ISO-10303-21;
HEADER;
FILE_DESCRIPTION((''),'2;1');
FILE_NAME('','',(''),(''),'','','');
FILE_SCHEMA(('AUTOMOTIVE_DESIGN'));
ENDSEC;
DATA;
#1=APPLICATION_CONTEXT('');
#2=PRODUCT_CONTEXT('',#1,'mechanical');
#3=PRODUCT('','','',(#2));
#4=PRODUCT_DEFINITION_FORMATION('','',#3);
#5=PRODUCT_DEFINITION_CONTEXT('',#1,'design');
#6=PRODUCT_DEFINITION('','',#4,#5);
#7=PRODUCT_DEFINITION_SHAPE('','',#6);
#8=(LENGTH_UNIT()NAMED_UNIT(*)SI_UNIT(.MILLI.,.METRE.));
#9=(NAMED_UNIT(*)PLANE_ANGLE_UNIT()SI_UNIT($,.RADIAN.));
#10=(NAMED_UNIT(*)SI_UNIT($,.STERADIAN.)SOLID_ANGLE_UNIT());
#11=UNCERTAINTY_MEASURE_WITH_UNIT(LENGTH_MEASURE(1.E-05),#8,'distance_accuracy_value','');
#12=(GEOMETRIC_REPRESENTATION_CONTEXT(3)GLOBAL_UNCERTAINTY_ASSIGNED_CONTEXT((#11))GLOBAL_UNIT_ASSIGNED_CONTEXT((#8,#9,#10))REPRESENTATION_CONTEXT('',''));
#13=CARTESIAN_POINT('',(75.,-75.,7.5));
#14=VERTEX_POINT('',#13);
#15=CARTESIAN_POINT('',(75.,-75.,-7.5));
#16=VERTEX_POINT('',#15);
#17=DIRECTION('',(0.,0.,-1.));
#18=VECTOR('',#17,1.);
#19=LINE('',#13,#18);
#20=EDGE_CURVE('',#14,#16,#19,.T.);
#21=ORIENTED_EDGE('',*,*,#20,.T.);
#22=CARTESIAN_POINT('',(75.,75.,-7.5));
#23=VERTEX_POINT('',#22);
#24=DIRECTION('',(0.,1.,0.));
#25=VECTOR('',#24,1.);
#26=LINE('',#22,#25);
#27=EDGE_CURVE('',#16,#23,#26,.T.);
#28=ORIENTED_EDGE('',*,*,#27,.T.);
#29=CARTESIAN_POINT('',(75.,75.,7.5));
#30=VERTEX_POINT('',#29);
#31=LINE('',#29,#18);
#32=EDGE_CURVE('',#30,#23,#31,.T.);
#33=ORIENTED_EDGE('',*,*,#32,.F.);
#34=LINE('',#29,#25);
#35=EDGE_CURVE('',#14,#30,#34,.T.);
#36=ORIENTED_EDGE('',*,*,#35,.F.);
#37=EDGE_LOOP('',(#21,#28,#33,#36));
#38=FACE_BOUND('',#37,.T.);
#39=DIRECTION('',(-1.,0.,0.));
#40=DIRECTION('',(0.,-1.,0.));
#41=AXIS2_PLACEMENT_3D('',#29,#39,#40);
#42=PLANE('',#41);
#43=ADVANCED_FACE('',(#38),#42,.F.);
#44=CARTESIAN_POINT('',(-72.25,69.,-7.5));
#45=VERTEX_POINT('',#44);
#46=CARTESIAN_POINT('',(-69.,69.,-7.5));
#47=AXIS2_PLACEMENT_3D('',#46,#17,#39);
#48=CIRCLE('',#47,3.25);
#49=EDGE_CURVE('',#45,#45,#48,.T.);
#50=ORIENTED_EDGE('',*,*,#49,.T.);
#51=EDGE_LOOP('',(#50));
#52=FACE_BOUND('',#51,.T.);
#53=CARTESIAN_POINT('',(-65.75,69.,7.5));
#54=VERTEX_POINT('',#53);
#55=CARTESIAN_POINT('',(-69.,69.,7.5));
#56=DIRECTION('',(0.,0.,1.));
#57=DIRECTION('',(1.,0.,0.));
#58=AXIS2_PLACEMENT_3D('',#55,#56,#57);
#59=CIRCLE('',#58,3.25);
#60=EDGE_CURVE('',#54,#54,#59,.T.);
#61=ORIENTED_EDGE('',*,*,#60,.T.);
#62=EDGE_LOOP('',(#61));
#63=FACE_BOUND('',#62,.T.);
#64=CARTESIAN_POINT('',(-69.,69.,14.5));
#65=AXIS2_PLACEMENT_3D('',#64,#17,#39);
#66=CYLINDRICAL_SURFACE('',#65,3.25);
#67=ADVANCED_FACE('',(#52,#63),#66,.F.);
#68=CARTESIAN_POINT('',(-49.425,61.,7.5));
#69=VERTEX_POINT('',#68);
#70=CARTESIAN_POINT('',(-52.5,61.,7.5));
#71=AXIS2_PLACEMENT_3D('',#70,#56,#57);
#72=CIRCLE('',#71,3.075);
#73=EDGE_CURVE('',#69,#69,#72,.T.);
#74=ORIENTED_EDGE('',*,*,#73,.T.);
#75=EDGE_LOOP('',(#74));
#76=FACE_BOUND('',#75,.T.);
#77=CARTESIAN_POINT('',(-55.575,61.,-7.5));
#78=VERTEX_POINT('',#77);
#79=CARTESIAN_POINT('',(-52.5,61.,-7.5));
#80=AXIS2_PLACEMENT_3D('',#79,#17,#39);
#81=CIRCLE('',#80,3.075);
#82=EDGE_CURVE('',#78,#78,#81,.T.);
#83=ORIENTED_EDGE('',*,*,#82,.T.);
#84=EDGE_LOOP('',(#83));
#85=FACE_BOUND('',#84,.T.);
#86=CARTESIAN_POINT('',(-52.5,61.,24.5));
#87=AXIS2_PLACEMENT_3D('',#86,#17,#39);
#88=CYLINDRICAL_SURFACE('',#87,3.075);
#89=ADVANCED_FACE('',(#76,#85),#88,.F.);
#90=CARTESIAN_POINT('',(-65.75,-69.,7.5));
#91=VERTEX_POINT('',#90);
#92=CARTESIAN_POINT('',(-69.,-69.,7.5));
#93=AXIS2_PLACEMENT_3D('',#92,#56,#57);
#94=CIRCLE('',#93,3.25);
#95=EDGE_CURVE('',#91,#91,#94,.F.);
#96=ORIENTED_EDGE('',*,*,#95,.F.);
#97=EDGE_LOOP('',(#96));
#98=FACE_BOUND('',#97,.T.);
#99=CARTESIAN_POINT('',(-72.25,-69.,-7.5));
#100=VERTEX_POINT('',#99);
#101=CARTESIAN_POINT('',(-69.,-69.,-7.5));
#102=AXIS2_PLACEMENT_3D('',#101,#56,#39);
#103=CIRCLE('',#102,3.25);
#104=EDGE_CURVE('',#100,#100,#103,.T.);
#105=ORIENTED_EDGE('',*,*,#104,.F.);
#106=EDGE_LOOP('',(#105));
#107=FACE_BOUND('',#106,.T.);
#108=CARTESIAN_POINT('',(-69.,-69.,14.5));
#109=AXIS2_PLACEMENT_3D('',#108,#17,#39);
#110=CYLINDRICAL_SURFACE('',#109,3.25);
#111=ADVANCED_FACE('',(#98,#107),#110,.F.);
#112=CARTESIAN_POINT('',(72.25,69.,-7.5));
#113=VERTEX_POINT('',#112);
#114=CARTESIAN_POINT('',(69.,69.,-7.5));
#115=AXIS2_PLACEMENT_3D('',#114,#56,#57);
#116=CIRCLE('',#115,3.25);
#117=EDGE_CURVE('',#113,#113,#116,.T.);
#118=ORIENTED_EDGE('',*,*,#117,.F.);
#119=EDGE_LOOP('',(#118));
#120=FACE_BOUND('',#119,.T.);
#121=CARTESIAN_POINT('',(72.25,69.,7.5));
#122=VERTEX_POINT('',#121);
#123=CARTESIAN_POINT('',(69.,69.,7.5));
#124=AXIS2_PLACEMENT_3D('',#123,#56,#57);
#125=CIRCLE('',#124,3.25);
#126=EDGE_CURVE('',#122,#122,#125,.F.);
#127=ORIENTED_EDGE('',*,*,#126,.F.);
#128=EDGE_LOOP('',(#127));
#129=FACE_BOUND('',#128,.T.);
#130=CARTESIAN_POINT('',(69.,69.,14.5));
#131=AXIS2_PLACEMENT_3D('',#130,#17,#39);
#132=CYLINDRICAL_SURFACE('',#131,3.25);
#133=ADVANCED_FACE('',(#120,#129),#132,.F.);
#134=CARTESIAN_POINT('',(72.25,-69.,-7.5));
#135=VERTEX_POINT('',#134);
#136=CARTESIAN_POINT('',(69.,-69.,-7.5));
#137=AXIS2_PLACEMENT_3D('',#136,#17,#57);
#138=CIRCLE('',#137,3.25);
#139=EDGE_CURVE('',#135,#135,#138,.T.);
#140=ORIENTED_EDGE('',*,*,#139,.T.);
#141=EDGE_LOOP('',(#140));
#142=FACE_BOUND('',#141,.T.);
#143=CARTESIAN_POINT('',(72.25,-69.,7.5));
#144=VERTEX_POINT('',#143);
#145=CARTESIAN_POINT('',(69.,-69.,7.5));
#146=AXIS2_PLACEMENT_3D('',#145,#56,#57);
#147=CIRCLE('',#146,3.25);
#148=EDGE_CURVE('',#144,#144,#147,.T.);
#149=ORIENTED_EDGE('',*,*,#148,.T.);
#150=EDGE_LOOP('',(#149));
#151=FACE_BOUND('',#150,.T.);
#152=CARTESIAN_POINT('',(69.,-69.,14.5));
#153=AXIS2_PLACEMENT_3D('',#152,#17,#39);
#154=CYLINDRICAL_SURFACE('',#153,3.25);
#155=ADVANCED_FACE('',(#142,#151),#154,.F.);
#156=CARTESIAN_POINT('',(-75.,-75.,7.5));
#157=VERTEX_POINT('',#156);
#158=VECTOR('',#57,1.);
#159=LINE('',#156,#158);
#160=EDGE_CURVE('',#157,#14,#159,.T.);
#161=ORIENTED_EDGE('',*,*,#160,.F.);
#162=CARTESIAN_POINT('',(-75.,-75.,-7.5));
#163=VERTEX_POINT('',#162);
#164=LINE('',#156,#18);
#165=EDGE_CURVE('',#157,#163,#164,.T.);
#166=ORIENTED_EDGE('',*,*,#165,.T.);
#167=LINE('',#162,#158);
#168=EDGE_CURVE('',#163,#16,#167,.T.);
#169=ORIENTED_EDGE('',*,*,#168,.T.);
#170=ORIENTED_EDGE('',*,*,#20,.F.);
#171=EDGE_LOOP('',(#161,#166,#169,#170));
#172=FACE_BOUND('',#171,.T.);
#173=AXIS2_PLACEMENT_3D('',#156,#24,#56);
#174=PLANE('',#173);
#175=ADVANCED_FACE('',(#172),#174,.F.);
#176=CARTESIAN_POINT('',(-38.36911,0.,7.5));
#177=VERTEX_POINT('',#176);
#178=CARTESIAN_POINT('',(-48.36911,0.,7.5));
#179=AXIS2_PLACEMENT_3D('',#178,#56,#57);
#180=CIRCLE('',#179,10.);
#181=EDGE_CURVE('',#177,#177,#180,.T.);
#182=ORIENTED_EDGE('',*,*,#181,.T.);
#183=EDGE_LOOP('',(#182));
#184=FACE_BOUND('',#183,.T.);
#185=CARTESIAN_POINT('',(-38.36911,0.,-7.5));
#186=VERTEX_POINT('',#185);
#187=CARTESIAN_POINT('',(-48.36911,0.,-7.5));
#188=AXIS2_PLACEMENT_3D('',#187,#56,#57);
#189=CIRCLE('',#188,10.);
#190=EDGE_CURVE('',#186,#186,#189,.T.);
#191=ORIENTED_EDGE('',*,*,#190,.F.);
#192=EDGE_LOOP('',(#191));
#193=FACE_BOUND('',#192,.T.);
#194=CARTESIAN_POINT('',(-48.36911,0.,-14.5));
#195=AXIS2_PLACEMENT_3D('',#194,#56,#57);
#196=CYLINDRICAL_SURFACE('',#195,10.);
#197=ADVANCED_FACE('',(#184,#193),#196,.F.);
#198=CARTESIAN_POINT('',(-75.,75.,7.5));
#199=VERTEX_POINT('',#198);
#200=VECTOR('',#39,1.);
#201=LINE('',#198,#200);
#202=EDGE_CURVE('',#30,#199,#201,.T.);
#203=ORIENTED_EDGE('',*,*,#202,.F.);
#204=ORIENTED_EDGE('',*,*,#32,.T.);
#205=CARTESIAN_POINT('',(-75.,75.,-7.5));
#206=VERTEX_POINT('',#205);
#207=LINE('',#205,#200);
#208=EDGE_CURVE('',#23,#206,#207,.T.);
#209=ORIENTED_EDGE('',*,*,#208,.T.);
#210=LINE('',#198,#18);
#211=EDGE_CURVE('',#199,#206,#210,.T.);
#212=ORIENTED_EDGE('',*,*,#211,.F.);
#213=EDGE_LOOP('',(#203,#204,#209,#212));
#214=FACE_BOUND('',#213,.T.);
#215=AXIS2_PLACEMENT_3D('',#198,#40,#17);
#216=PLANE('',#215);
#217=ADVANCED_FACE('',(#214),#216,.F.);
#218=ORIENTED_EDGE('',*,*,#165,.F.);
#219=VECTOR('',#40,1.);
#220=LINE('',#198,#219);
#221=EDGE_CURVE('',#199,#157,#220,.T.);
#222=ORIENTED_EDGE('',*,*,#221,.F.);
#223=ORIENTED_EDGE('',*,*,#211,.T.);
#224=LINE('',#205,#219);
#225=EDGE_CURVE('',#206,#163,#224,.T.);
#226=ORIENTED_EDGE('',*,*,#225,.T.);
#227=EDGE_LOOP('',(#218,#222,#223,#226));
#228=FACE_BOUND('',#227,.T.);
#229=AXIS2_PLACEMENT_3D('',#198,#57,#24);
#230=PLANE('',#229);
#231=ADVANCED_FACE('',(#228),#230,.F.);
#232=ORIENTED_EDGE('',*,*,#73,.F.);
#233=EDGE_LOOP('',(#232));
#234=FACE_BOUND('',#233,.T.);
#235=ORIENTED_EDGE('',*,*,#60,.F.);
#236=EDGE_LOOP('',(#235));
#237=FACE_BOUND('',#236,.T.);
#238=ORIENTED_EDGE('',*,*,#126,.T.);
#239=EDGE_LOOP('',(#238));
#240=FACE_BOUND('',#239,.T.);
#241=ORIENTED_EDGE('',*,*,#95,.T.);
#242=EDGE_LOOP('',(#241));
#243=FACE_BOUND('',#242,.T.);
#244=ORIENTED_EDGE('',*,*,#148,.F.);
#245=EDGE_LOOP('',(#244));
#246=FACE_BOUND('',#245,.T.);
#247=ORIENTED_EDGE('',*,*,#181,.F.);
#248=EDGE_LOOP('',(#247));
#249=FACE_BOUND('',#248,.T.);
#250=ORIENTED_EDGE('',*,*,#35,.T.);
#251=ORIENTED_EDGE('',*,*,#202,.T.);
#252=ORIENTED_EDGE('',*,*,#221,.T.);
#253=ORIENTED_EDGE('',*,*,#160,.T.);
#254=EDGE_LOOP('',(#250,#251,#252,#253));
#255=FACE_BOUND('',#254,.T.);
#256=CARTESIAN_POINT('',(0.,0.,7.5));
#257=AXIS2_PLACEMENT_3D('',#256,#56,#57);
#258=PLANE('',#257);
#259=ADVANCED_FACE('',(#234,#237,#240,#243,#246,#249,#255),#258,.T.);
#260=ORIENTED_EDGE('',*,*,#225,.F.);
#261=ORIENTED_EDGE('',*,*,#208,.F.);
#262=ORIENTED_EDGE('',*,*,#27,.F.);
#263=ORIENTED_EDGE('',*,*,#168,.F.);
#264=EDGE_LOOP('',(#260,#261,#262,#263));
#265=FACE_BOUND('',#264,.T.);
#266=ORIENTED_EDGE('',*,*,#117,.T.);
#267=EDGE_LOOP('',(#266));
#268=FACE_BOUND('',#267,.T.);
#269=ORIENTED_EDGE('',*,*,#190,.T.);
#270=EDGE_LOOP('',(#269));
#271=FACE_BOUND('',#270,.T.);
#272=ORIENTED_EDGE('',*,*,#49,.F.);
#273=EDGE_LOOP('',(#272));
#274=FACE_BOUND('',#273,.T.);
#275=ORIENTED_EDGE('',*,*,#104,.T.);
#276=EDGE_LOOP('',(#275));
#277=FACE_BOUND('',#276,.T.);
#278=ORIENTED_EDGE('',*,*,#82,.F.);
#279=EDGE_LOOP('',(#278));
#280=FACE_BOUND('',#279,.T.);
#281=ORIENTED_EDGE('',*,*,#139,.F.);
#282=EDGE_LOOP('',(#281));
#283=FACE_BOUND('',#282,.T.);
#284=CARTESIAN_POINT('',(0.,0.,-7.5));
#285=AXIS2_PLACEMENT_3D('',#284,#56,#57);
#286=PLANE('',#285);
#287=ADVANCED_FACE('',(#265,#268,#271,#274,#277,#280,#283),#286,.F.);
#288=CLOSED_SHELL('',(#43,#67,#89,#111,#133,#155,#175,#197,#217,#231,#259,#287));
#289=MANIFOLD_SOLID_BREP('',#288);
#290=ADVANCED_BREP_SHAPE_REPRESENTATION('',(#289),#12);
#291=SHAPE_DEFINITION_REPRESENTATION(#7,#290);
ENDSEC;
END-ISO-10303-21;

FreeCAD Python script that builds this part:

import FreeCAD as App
import Part
import Sketcher

V = App.Vector
Q = App.Units.Quantity

doc = App.newDocument("Part")
body = doc.addObject("PartDesign::Body", "Body")

# Sketch on XY plane
sketch1 = body.newObject("Sketcher::SketchObject", "Sketch")
sketch1.AttachmentSupport = (doc.getObject("XY_Plane"), [""])
sketch1.MapMode = "FlatFace"
sketch1.addGeometry(Part.LineSegment(V(-75, 75, 0), V(-75, -75, 0)), False)
sketch1.addGeometry(Part.LineSegment(V(-75, -75, 0), V(75, -75, 0)), False)
sketch1.addGeometry(Part.LineSegment(V(75, -75, 0), V(75, 75, 0)), False)
sketch1.addGeometry(Part.LineSegment(V(75, 75, 0), V(-75, 75, 0)), False)
sketch1.addConstraint(Sketcher.Constraint("Coincident", 0, 2, 1, 1))
sketch1.addConstraint(Sketcher.Constraint("Coincident", 1, 2, 2, 1))
sketch1.addConstraint(Sketcher.Constraint("Coincident", 2, 2, 3, 1))
sketch1.addConstraint(Sketcher.Constraint("Coincident", 3, 2, 0, 1))
sketch1.addConstraint(Sketcher.Constraint("Vertical", 0))
sketch1.addConstraint(Sketcher.Constraint("Horizontal", 1))
sketch1.addConstraint(Sketcher.Constraint("Vertical", 2))
sketch1.addConstraint(Sketcher.Constraint("Horizontal", 3))
sketch1.addConstraint(Sketcher.Constraint("Symmetric", 0, 2, 2, 2, -1, 1))
sketch1.addConstraint(Sketcher.Constraint("Equal", 3, 0))
sketch1.addConstraint(Sketcher.Constraint("DistanceX", 1, 1, 1, 2, Q("150 mm")))
pad1 = body.newObject("PartDesign::Pad", "Pad")
pad1.Profile = sketch1
pad1.Length = 15
pad1.Midplane = True

# Sketch on XY plane
sketch2 = body.newObject("Sketcher::SketchObject", "Sketch001")
sketch2.AttachmentSupport = (doc.getObject("XY_Plane"), [""])
sketch2.MapMode = "FlatFace"
sketch2.AttachmentOffset = App.Placement(V(0, 0, -7.5), App.Rotation())
sketch2.addGeometry(Part.Circle(V(-52.5, 61, 0), V(0, 0, 1), 3.075), False)
sketch2.addConstraint(Sketcher.Constraint("Diameter", 0, Q("6.15 mm")))
sketch2.addConstraint(Sketcher.Constraint("DistanceY", -1, 1, 0, 3, Q("61 mm")))
sketch2.addConstraint(Sketcher.Constraint("DistanceX", 0, 3, -1, 1, Q("52.5 mm")))
pocket1 = body.newObject("PartDesign::Pocket", "Pocket")
pocket1.Profile = sketch2
pocket1.Length = 32
pocket1.Reversed = True

# Sketch on XY plane
sketch3 = body.newObject("Sketcher::SketchObject", "Sketch002")
sketch3.AttachmentSupport = (doc.getObject("XY_Plane"), [""])
sketch3.MapMode = "FlatFace"
sketch3.AttachmentOffset = App.Placement(V(0, 0, 7.5), App.Rotation())
sketch3.addGeometry(Part.Circle(V(-48.36911, 0, 0), V(0, 0, 1), 10), False)
sketch3.addConstraint(Sketcher.Constraint("PointOnObject", 0, 3, -1))
sketch3.addConstraint(Sketcher.Constraint("Diameter", 0, Q("20 mm")))
sketch3.addConstraint(Sketcher.Constraint("DistanceX", 0, 3, -1, 1, Q("48.36911 mm")))
pocket2 = body.newObject("PartDesign::Pocket", "Pocket001")
pocket2.Profile = sketch3
pocket2.Length = 22

# Sketch on XY plane
sketch4 = body.newObject("Sketcher::SketchObject", "Sketch003")
sketch4.AttachmentSupport = (doc.getObject("XY_Plane"), [""])
sketch4.MapMode = "FlatFace"
sketch4.AttachmentOffset = App.Placement(V(0, 0, -7.5), App.Rotation())
sketch4.addGeometry(Part.Circle(V(-69, 69, 0), V(0, 0, 1), 3.25), False)
sketch4.addConstraint(Sketcher.Constraint("Diameter", 0, Q("6.5 mm")))
sketch4.addConstraint(Sketcher.Constraint("DistanceX", 0, 3, -1, 1, Q("69 mm")))
sketch4.addConstraint(Sketcher.Constraint("DistanceY", -1, 1, 0, 3, Q("69 mm")))
pocket3 = body.newObject("PartDesign::Pocket", "Pocket002")
pocket3.Profile = sketch4
pocket3.Length = 22
pocket3.Reversed = True
doc.recompute()

mirrored = body.newObject("PartDesign::Mirrored", "Mirrored")
mirrored.Originals = [pocket3]
mirrored.MirrorPlane = (doc.getObject("XZ_Plane"), [""])
body.Tip = mirrored
doc.recompute()

mirrored2 = body.newObject("PartDesign::Mirrored", "Mirrored001")
mirrored2.Originals = [pocket3]
mirrored2.MirrorPlane = (doc.getObject("YZ_Plane"), [""])
body.Tip = mirrored2

# Sketch on XY plane
sketch5 = body.newObject("Sketcher::SketchObject", "Sketch004")
sketch5.AttachmentSupport = (doc.getObject("XY_Plane"), [""])
sketch5.MapMode = "FlatFace"
sketch5.AttachmentOffset = App.Placement(V(0, 0, -7.5), App.Rotation())
sketch5.addGeometry(Part.Circle(V(69, -69, 0), V(0, 0, 1), 3.25), False)
sketch5.addConstraint(Sketcher.Constraint("Diameter", 0, Q("6.5 mm")))
sketch5.addConstraint(Sketcher.Constraint("DistanceX", -1, 1, 0, 3, Q("69 mm")))
sketch5.addConstraint(Sketcher.Constraint("DistanceY", 0, 3, -1, 1, Q("69 mm")))
pocket4 = body.newObject("PartDesign::Pocket", "Pocket003")
pocket4.Profile = sketch5
pocket4.Length = 22
pocket4.Reversed = True

doc.recompute()
